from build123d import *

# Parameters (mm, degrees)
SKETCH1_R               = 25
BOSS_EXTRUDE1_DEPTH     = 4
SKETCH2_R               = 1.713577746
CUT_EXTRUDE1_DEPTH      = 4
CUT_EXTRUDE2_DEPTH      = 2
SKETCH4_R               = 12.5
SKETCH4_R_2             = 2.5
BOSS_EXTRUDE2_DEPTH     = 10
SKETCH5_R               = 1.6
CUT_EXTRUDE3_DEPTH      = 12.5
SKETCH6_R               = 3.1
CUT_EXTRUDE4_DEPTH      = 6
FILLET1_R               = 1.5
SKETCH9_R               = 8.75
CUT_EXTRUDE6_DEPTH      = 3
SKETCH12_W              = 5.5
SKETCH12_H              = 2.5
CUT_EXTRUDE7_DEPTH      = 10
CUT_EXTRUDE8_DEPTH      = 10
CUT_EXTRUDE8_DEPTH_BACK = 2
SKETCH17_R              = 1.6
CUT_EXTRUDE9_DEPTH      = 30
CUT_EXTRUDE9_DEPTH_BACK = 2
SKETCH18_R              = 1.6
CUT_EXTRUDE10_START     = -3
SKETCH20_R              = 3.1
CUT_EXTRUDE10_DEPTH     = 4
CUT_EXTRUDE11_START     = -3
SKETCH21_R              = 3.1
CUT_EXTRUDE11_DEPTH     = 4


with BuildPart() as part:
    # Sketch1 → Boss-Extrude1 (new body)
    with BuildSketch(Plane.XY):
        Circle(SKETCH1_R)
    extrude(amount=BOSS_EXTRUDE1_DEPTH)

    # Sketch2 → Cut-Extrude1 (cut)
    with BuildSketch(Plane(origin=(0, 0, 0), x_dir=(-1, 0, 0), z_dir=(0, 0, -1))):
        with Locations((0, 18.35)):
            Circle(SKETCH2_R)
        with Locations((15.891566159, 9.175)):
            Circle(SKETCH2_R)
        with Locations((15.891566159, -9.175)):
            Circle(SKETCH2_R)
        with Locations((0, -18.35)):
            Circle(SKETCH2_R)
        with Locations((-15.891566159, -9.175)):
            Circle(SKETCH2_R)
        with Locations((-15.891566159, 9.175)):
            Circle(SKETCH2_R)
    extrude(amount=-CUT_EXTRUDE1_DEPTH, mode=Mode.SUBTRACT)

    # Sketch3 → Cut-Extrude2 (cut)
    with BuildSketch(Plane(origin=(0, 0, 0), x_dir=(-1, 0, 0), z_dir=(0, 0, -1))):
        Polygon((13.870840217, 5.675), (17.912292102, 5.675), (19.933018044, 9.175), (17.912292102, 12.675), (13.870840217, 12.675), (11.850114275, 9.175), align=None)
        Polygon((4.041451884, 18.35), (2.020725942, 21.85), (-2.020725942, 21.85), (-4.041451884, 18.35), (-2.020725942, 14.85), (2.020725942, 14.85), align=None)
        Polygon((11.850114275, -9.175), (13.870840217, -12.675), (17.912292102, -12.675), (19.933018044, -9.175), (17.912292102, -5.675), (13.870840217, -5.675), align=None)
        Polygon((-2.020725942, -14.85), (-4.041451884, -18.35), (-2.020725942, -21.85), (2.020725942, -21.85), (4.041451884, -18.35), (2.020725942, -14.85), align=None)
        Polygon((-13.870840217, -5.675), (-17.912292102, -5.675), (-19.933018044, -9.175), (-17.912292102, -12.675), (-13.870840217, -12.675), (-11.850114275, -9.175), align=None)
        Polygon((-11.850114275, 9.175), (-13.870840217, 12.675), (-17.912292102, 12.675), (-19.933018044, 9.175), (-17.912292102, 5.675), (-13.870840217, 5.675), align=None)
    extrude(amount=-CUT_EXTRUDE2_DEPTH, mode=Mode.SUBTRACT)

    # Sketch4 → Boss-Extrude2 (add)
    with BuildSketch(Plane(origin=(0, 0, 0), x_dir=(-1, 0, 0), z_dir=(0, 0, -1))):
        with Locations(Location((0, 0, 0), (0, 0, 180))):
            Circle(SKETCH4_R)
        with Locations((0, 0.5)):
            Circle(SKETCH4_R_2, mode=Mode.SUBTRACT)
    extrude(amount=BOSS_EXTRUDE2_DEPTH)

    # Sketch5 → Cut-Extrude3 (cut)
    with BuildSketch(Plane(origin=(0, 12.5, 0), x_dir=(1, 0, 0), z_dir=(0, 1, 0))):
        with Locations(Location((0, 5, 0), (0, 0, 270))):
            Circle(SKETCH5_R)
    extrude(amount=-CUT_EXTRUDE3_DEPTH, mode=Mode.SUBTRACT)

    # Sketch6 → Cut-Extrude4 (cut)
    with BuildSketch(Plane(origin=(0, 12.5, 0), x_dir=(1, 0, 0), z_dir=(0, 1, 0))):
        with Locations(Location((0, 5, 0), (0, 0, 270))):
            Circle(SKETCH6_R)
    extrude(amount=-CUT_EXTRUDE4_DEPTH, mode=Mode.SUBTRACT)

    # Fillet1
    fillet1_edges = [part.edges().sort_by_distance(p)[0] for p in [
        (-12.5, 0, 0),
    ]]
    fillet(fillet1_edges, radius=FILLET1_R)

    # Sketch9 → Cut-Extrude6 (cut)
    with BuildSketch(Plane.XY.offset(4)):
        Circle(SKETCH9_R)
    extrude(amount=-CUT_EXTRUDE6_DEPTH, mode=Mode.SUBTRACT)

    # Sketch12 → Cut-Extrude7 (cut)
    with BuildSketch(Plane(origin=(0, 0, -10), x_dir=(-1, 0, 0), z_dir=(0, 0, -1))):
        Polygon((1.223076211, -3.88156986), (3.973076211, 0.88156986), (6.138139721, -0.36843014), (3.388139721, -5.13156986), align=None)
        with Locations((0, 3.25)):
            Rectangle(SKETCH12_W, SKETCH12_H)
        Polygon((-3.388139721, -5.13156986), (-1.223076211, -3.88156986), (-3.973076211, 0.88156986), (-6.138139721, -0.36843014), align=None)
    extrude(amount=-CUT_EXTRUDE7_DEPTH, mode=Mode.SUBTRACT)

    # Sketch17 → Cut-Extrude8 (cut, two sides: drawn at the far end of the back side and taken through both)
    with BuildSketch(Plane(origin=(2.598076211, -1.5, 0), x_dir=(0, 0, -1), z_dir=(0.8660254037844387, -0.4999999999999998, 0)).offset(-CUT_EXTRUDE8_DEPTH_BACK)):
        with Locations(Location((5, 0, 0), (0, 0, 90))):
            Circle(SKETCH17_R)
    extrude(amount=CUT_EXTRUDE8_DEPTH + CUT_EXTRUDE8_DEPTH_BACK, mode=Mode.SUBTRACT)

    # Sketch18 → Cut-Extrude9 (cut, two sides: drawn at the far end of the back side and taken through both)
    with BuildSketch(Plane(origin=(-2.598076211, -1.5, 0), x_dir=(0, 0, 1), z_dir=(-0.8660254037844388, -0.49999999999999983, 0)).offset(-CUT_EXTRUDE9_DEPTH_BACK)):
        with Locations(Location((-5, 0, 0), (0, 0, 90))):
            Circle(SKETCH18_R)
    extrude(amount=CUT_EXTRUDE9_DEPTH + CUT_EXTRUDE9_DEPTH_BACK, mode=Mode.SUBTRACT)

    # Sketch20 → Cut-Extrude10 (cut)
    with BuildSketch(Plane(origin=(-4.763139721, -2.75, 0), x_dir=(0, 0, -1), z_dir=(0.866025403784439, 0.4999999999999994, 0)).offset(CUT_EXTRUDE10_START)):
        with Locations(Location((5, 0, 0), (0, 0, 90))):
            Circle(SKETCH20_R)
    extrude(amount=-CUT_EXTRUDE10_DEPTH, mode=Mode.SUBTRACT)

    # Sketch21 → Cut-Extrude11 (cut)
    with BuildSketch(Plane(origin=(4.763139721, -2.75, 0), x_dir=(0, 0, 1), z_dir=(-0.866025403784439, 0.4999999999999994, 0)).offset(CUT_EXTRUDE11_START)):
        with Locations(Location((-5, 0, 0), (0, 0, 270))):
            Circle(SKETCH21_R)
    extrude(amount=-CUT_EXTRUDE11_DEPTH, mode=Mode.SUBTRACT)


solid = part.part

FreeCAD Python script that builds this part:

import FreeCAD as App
import Part
import Sketcher
from FreeCAD import Vector
Q = App.Units.Quantity


def edges_at(feature, points):
    """Names of the edges that pass closest to the given points."""
    edges = feature.Shape.Edges
    near = lambda p: min(range(len(edges)), key=lambda i: edges[i].distToShape(Part.Vertex(*p))[0])
    return sorted({f"Edge{near(p) + 1}" for p in points})


def add_polygon(sketch, points):
    """Adds a closed chain of lines whose ends are joined by coincident constraints."""
    first, n = sketch.GeometryCount, len(points)
    for a, b in zip(points, points[1:] + points[:1]):
        sketch.addGeometry(Part.LineSegment(App.Vector(*a, 0), App.Vector(*b, 0)), False)
    for i in range(n):
        sketch.addConstraint(Sketcher.Constraint("Coincident", first + i, 2, first + (i + 1) % n, 1))

doc = App.newDocument("Part")
body = doc.addObject("PartDesign::Body", "Body")

sketch1 = body.newObject("Sketcher::SketchObject", "Sketch")
sketch1.AttachmentSupport = (doc.getObject("XY_Plane"), [""])
sketch1.MapMode = "FlatFace"
sketch1.addGeometry(Part.Circle(Vector(0, 0, 0), Vector(0, 0, 1), 25), False)
sketch1.addConstraint(Sketcher.Constraint("Coincident", 0, 3, -1, 1))
sketch1.addConstraint(Sketcher.Constraint("Diameter", 0, Q("50 mm")))
pad1 = body.newObject("PartDesign::Pad", "Pad")
pad1.Profile = sketch1
pad1.Length = 4

sketch2 = body.newObject("Sketcher::SketchObject", "Sketch001")
sketch2.AttachmentSupport = (doc.getObject("XY_Plane"), [""])
sketch2.MapMode = "FlatFace"
sketch2.addGeometry(Part.Circle(Vector(0, 18.35, 0), Vector(0, 0, 1), 1.713578), False)
sketch2.addGeometry(Part.Circle(Vector(-15.891566, 9.175, 0), Vector(0, 0, 1), 1.713578), False)
sketch2.addGeometry(Part.Circle(Vector(-15.891566, -9.175, 0), Vector(0, 0, 1), 1.713578), False)
sketch2.addGeometry(Part.Circle(Vector(0, -18.35, 0), Vector(0, 0, 1), 1.713578), False)
sketch2.addGeometry(Part.Circle(Vector(15.891566, -9.175, 0), Vector(0, 0, 1), 1.713578), False)
sketch2.addGeometry(Part.Circle(Vector(15.891566, 9.175, 0), Vector(0, 0, 1), 1.713578), False)
sketch2.addConstraint(Sketcher.Constraint("Equal", 0, 1))
sketch2.addConstraint(Sketcher.Constraint("Equal", 1, 2))
sketch2.addConstraint(Sketcher.Constraint("Equal", 2, 3))
sketch2.addConstraint(Sketcher.Constraint("Equal", 3, 4))
sketch2.addConstraint(Sketcher.Constraint("Equal", 4, 5))
sketch2.addConstraint(Sketcher.Constraint("Symmetric", 0, 3, 3, 3, -1, 1))
sketch2.addConstraint(Sketcher.Constraint("Symmetric", 1, 3, 4, 3, -1, 1))
sketch2.addConstraint(Sketcher.Constraint("Symmetric", 2, 3, 5, 3, -1, 1))
sketch2.addConstraint(Sketcher.Constraint("Symmetric", 2, 3, 4, 3, -2))
sketch2.addConstraint(Sketcher.Constraint("PointOnObject", 0, 3, -2))
sketch2.addConstraint(Sketcher.Constraint("DistanceY", 3, 3, 0, 3, Q("36.7 mm")))
sketch2.addConstraint(Sketcher.Constraint("DistanceY", 2, 3, 1, 3, Q("18.35 mm")))
sketch2.addConstraint(Sketcher.Constraint("Diameter", 0, Q("3.427155 mm")))
sketch2.addConstraint(Sketcher.Constraint("DistanceX", 1, 3, -1, 1, Q("15.891566 mm")))
pocket1 = body.newObject("PartDesign::Pocket", "Pocket")
pocket1.Profile = sketch2
pocket1.Length = 4
pocket1.Reversed = True

sketch3 = body.newObject("Sketcher::SketchObject", "Sketch002")
sketch3.AttachmentSupport = (doc.getObject("XY_Plane"), [""])
sketch3.MapMode = "FlatFace"
add_polygon(sketch3, [(-13.87084, 5.675), (-17.912292, 5.675), (-19.933018, 9.175), (-17.912292, 12.675), (-13.87084, 12.675), (-11.850114, 9.175)])
add_polygon(sketch3, [(-4.041452, 18.35), (-2.020726, 21.85), (2.020726, 21.85), (4.041452, 18.35), (2.020726, 14.85), (-2.020726, 14.85)])
add_polygon(sketch3, [(-11.850114, -9.175), (-13.87084, -12.675), (-17.912292, -12.675), (-19.933018, -9.175), (-17.912292, -5.675), (-13.87084, -5.675)])
add_polygon(sketch3, [(2.020726, -14.85), (4.041452, -18.35), (2.020726, -21.85), (-2.020726, -21.85), (-4.041452, -18.35), (-2.020726, -14.85)])
add_polygon(sketch3, [(13.87084, -5.675), (17.912292, -5.675), (19.933018, -9.175), (17.912292, -12.675), (13.87084, -12.675), (11.850114, -9.175)])
add_polygon(sketch3, [(11.850114, 9.175), (13.87084, 12.675), (17.912292, 12.675), (19.933018, 9.175), (17.912292, 5.675), (13.87084, 5.675)])
sketch3.addConstraint(Sketcher.Constraint("Horizontal", 0))
sketch3.addConstraint(Sketcher.Constraint("Horizontal", 3))
sketch3.addConstraint(Sketcher.Constraint("Horizontal", 7))
sketch3.addConstraint(Sketcher.Constraint("Horizontal", 10))
sketch3.addConstraint(Sketcher.Constraint("Horizontal", 13))
sketch3.addConstraint(Sketcher.Constraint("Horizontal", 16))
sketch3.addConstraint(Sketcher.Constraint("Horizontal", 20))
sketch3.addConstraint(Sketcher.Constraint("Horizontal", 23))
sketch3.addConstraint(Sketcher.Constraint("Horizontal", 24))
sketch3.addConstraint(Sketcher.Constraint("Horizontal", 27))
sketch3.addConstraint(Sketcher.Constraint("Horizontal", 31))
sketch3.addConstraint(Sketcher.Constraint("Horizontal", 34))
sketch3.addConstraint(Sketcher.Constraint("Symmetric", 11, 2, 18, 2, -1, 1))
sketch3.addConstraint(Sketcher.Constraint("Symmetric", 6, 2, 19, 2, -1, 1))
sketch3.addConstraint(Sketcher.Constraint("Symmetric", 8, 2, 21, 2, -1, 1))
sketch3.addConstraint(Sketcher.Constraint("Symmetric", 9, 2, 22, 2, -1, 1))
sketch3.addConstraint(Sketcher.Constraint("Symmetric", 0, 2, 24, 2, -1, 1))
sketch3.addConstraint(Sketcher.Constraint("Symmetric", 1, 2, 25, 2, -1, 1))
sketch3.addConstraint(Sketcher.Constraint("Symmetric", 2, 2, 26, 2, -1, 1))
sketch3.addConstraint(Sketcher.Constraint("Symmetric", 4, 2, 28, 2, -1, 1))
sketch3.addConstraint(Sketcher.Constraint("Symmetric", 12, 2, 30, 2, -1, 1))
sketch3.addConstraint(Sketcher.Constraint("Symmetric", 14, 2, 32, 2, -1, 1))
sketch3.addConstraint(Sketcher.Constraint("Symmetric", 15, 2, 33, 2, -1, 1))
sketch3.addConstraint(Sketcher.Constraint("Symmetric", 17, 2, 35, 2, -1, 1))
sketch3.addConstraint(Sketcher.Constraint("Symmetric", 8, 2, 11, 2, -2))
sketch3.addConstraint(Sketcher.Constraint("Symmetric", 15, 2, 24, 2, -2))
sketch3.addConstraint(Sketcher.Constraint("Symmetric", 14, 2, 25, 2, -2))
sketch3.addConstraint(Sketcher.Constraint("Symmetric", 13, 2, 26, 2, -2))
sketch3.addConstraint(Sketcher.Constraint("Symmetric", 17, 2, 28, 2, -2))
sketch3.addConstraint(Sketcher.Constraint("Parallel", 1, 4))
sketch3.addConstraint(Sketcher.Constraint("Parallel", 2, 5))
sketch3.addConstraint(Sketcher.Constraint("Parallel", 5, 6))
sketch3.addConstraint(Sketcher.Constraint("Parallel", 4, 8))
sketch3.addConstraint(Sketcher.Constraint("Parallel", 6, 9))
sketch3.addConstraint(Sketcher.Constraint("Parallel", 8, 11))
sketch3.addConstraint(Sketcher.Constraint("Parallel", 9, 12))
sketch3.addConstraint(Sketcher.Constraint("Parallel", 11, 14))
sketch3.addConstraint(Sketcher.Constraint("Parallel", 14, 17))
sketch3.addConstraint(Sketcher.Constraint("Parallel", 17, 18))
sketch3.addConstraint(Sketcher.Constraint("Parallel", 18, 21))
sketch3.addConstraint(Sketcher.Constraint("Parallel", 25, 28))
sketch3.addConstraint(Sketcher.Constraint("Parallel", 26, 29))
sketch3.addConstraint(Sketcher.Constraint("Parallel", 28, 32))
sketch3.addConstraint(Sketcher.Constraint("Parallel", 32, 35))
sketch3.addConstraint(Sketcher.Constraint("Horizontal", 1, 2, 4, 2))
sketch3.addConstraint(Sketcher.Constraint("Vertical", 0, 2, 2, 2))
sketch3.addConstraint(Sketcher.Constraint("Vertical", 7, 2, 9, 2))
sketch3.addConstraint(Sketcher.Constraint("Equal", 3, 7))
sketch3.addConstraint(Sketcher.Constraint("Equal", 5, 6))
sketch3.addConstraint(Sketcher.Constraint("Angle", 1, Q("120 deg")))
sketch3.addConstraint(Sketcher.Constraint("DistanceY", 0, 2, 2, 2, Q("7 mm")))
sketch3.addConstraint(Sketcher.Constraint("DistanceY", -1, 1, 6, 2, Q("21.85 mm")))
sketch3.addConstraint(Sketcher.Constraint("DistanceY", 12, 2, 5, 2, Q("18.35 mm")))
sketch3.addConstraint(Sketcher.Constraint("DistanceX", 0, 2, 0, 1, Q("4.041452 mm")))
sketch3.addConstraint(Sketcher.Constraint("DistanceX", 1, 2, -1, 1, Q("19.933018 mm")))
pocket2 = body.newObject("PartDesign::Pocket", "Pocket001")
pocket2.Profile = sketch3
pocket2.Length = 2
pocket2.Reversed = True

sketch4 = body.newObject("Sketcher::SketchObject", "Sketch003")
sketch4.AttachmentSupport = (doc.getObject("XY_Plane"), [""])
sketch4.MapMode = "FlatFace"
sketch4.addGeometry(Part.Circle(Vector(0, 0, 0), Vector(0, 0, 1), 12.5), False)
sketch4.addGeometry(Part.Circle(Vector(0, 0.5, 0), Vector(0, 0, 1), 2.5), False)
sketch4.addConstraint(Sketcher.Constraint("Coincident", 0, 3, -1, 1))
sketch4.addConstraint(Sketcher.Constraint("PointOnObject", 1, 3, -2))
sketch4.addConstraint(Sketcher.Constraint("Diameter", 0, Q("25 mm")))
sketch4.addConstraint(Sketcher.Constraint("Diameter", 1, Q("5 mm")))
sketch4.addConstraint(Sketcher.Constraint("DistanceY", -1, 1, 1, 3, Q("0.5 mm")))
pad2 = body.newObject("PartDesign::Pad", "Pad001")
pad2.Profile = sketch4
pad2.Length = 10
pad2.Reversed = True

sketch5 = body.newObject("Sketcher::SketchObject", "Sketch004")
sketch5.AttachmentSupport = (doc.getObject("XZ_Plane"), [""])
sketch5.MapMode = "FlatFace"
sketch5.AttachmentOffset = App.Placement(Vector(0, 0, -12.5), App.Rotation())
sketch5.addGeometry(Part.Circle(Vector(0, -5, 0), Vector(0, 0, 1), 1.6), False)
sketch5.addConstraint(Sketcher.Constraint("PointOnObject", 0, 3, -2))
sketch5.addConstraint(Sketcher.Constraint("Diameter", 0, Q("3.2 mm")))
sketch5.addConstraint(Sketcher.Constraint("DistanceY", 0, 3, -1, 1, Q("5 mm")))
pocket3 = body.newObject("PartDesign::Pocket", "Pocket002")
pocket3.Profile = sketch5
pocket3.Length = 12.5
pocket3.Reversed = True

sketch6 = body.newObject("Sketcher::SketchObject", "Sketch005")
sketch6.AttachmentSupport = (doc.getObject("XZ_Plane"), [""])
sketch6.MapMode = "FlatFace"
sketch6.AttachmentOffset = App.Placement(Vector(0, 0, -12.5), App.Rotation())
sketch6.addGeometry(Part.Circle(Vector(0, -5, 0), Vector(0, 0, 1), 3.1), False)
sketch6.addConstraint(Sketcher.Constraint("PointOnObject", 0, 3, -2))
sketch6.addConstraint(Sketcher.Constraint("Diameter", 0, Q("6.2 mm")))
sketch6.addConstraint(Sketcher.Constraint("DistanceY", 0, 3, -1, 1, Q("5 mm")))
pocket4 = body.newObject("PartDesign::Pocket", "Pocket003")
pocket4.Profile = sketch6
pocket4.Length = 6
pocket4.Reversed = True
doc.recompute()

fillet = body.newObject("PartDesign::Fillet", "Fillet")
fillet.Base = (pocket4, edges_at(pocket4, [(-12.5, 0, 0)]))
fillet.Radius = 1.5

sketch7 = body.newObject("Sketcher::SketchObject", "Sketch006")
sketch7.AttachmentSupport = (doc.getObject("XY_Plane"), [""])
sketch7.MapMode = "FlatFace"
sketch7.AttachmentOffset = App.Placement(Vector(0, 0, 4), App.Rotation())
sketch7.addGeometry(Part.Circle(Vector(0, 0, 0), Vector(0, 0, 1), 8.75), False)
sketch7.addConstraint(Sketcher.Constraint("Coincident", 0, 3, -1, 1))
sketch7.addConstraint(Sketcher.Constraint("Diameter", 0, Q("17.5 mm")))
pocket5 = body.newObject("PartDesign::Pocket", "Pocket004")
pocket5.Profile = sketch7
pocket5.Length = 3

sketch8 = body.newObject("Sketcher::SketchObject", "Sketch007")
sketch8.AttachmentSupport = (doc.getObject("XY_Plane"), [""])
sketch8.MapMode = "FlatFace"
sketch8.AttachmentOffset = App.Placement(Vector(0, 0, -10), App.Rotation())
add_polygon(sketch8, [(-3.973076, 0.88157), (-1.223076, -3.88157), (-3.38814, -5.13157), (-6.13814, -0.36843)])
add_polygon(sketch8, [(2.75, 4.5), (2.75, 2), (-2.75, 2), (-2.75, 4.5)])
add_polygon(sketch8, [(3.38814, -5.13157), (1.223076, -3.88157), (3.973076, 0.88157), (6.13814, -0.36843)])
sketch8.addConstraint(Sketcher.Constraint("Vertical", 4))
sketch8.addConstraint(Sketcher.Constraint("Horizontal", 5))
sketch8.addConstraint(Sketcher.Constraint("Vertical", 6))
sketch8.addConstraint(Sketcher.Constraint("Horizontal", 7))
sketch8.addConstraint(Sketcher.Constraint("Symmetric", 0, 2, 8, 2, -2))
sketch8.addConstraint(Sketcher.Constraint("Symmetric", 3, 2, 9, 2, -2))
sketch8.addConstraint(Sketcher.Constraint("Symmetric", 2, 2, 10, 2, -2))
sketch8.addConstraint(Sketcher.Constraint("Symmetric", 1, 2, 11, 2, -2))
sketch8.addConstraint(Sketcher.Constraint("Perpendicular", 0, 1))
sketch8.addConstraint(Sketcher.Constraint("Perpendicular", 1, 2))
sketch8.addConstraint(Sketcher.Constraint("Perpendicular", 2, 3))
sketch8.addConstraint(Sketcher.Constraint("Angle", 0, Q("-60 deg")))
sketch8.addConstraint(Sketcher.Constraint("DistanceX", 5, 2, 5, 1, Q("5.5 mm")))
sketch8.addConstraint(Sketcher.Constraint("DistanceY", 4, 2, 4, 1, Q("2.5 mm")))
sketch8.addConstraint(Sketcher.Constraint("DistanceY", -1, 1, 4, 2, Q("2 mm")))
sketch8.addConstraint(Sketcher.Constraint("Distance", 0, Q("5.5 mm")))
sketch8.addConstraint(Sketcher.Constraint("Distance", 1, Q("2.5 mm")))
sketch8.addConstraint(Sketcher.Constraint("DistanceX", -1, 1, 4, 2, Q("2.75 mm")))
sketch8.addConstraint(Sketcher.Constraint("DistanceY", 0, 2, -1, 1, Q("3.88157 mm")))
sketch8.addConstraint(Sketcher.Constraint("DistanceX", 1, 2, -1, 1, Q("3.38814 mm")))
pocket6 = body.newObject("PartDesign::Pocket", "Pocket005")
pocket6.Profile = sketch8
pocket6.Length = 10
pocket6.Reversed = True

sketch9 = body.newObject("Sketcher::SketchObject", "Sketch008")
sketch9.Placement = App.Placement(Vector(2.598076, -1.5, 0), App.Rotation(Vector(0, 0, -1), Vector(0.5, 0.866025404, 0), Vector(0.866025404, -0.5, 0), "ZXY"))
sketch9.addGeometry(Part.Circle(Vector(5, 0, 0), Vector(0, 0, 1), 1.6), False)
sketch9.addConstraint(Sketcher.Constraint("PointOnObject", 0, 3, -1))
sketch9.addConstraint(Sketcher.Constraint("Diameter", 0, Q("3.2 mm")))
sketch9.addConstraint(Sketcher.Constraint("DistanceX", -1, 1, 0, 3, Q("5 mm")))
pocket7 = body.newObject("PartDesign::Pocket", "Pocket006")
pocket7.Profile = sketch9
pocket7.Type = "TwoLengths"
pocket7.Length = 10
pocket7.Length2 = 2
pocket7.Reversed = True

sketch10 = body.newObject("Sketcher::SketchObject", "Sketch009")
sketch10.Placement = App.Placement(Vector(-2.598076, -1.5, 0), App.Rotation(Vector(0, 0, 1), Vector(-0.5, 0.866025404, 0), Vector(-0.866025404, -0.5, 0), "ZXY"))
sketch10.addGeometry(Part.Circle(Vector(-5, 0, 0), Vector(0, 0, 1), 1.6), False)
sketch10.addConstraint(Sketcher.Constraint("PointOnObject", 0, 3, -1))
sketch10.addConstraint(Sketcher.Constraint("Diameter", 0, Q("3.2 mm")))
sketch10.addConstraint(Sketcher.Constraint("DistanceX", 0, 3, -1, 1, Q("5 mm")))
pocket8 = body.newObject("PartDesign::Pocket", "Pocket007")
pocket8.Profile = sketch10
pocket8.Type = "TwoLengths"
pocket8.Length = 30
pocket8.Length2 = 2
pocket8.Reversed = True

sketch11 = body.newObject("Sketcher::SketchObject", "Sketch010")
sketch11.Placement = App.Placement(Vector(-7.361216, -4.25, 0), App.Rotation(Vector(0, 0, -1), Vector(-0.5, 0.866025404, 0), Vector(0.866025404, 0.5, 0), "ZXY"))
sketch11.addGeometry(Part.Circle(Vector(5, 0, 0), Vector(0, 0, 1), 3.1), False)
sketch11.addConstraint(Sketcher.Constraint("PointOnObject", 0, 3, -1))
sketch11.addConstraint(Sketcher.Constraint("Diameter", 0, Q("6.2 mm")))
sketch11.addConstraint(Sketcher.Constraint("DistanceX", -1, 1, 0, 3, Q("5 mm")))
pocket9 = body.newObject("PartDesign::Pocket", "Pocket008")
pocket9.Profile = sketch11
pocket9.Length = 4

sketch12 = body.newObject("Sketcher::SketchObject", "Sketch011")
sketch12.Placement = App.Placement(Vector(7.361216, -4.25, 0), App.Rotation(Vector(0, 0, 1), Vector(0.5, 0.866025404, 0), Vector(-0.866025404, 0.5, 0), "ZXY"))
sketch12.addGeometry(Part.Circle(Vector(-5, 0, 0), Vector(0, 0, 1), 3.1), False)
sketch12.addConstraint(Sketcher.Constraint("PointOnObject", 0, 3, -1))
sketch12.addConstraint(Sketcher.Constraint("Diameter", 0, Q("6.2 mm")))
sketch12.addConstraint(Sketcher.Constraint("DistanceX", 0, 3, -1, 1, Q("5 mm")))
pocket10 = body.newObject("PartDesign::Pocket", "Pocket009")
pocket10.Profile = sketch12
pocket10.Length = 4

doc.recompute()
